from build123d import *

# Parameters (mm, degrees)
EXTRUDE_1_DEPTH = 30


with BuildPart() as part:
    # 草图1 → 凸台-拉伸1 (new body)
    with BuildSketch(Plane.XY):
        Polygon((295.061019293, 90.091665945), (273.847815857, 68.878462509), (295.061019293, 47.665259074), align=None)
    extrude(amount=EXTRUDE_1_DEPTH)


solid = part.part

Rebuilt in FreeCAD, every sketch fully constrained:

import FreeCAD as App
import Part
import Sketcher


def add_polygon(sketch, points):
    """Adds a closed chain of lines whose ends are joined by coincident constraints."""
    first, n = sketch.GeometryCount, len(points)
    for a, b in zip(points, points[1:] + points[:1]):
        sketch.addGeometry(Part.LineSegment(App.Vector(*a, 0), App.Vector(*b, 0)), False)
    for i in range(n):
        sketch.addConstraint(Sketcher.Constraint("Coincident", first + i, 2, first + (i + 1) % n, 1))

doc = App.newDocument("Part")
body = doc.addObject("PartDesign::Body", "Body")

# Sketch on XY plane
sketch1 = doc.addObject("Sketcher::SketchObject", "Sketch")
body.addObject(sketch1)
sketch1.AttachmentSupport = (doc.XY_Plane, [""])
sketch1.MapMode = "FlatFace"
add_polygon(sketch1, [(295, 90), (274, 69), (295, 48)])  # lines 0-2
sketch1.addConstraint([
    Sketcher.Constraint("Vertical", 2),
    Sketcher.Constraint("Perpendicular", 0, 1),
    Sketcher.Constraint("Equal", 0, 1),
    Sketcher.Constraint("Distance", 0, 30.0),
    Sketcher.Constraint("DistanceX", -1, 1, 1, 2, 295.061019),
    Sketcher.Constraint("DistanceY", -1, 1, 1, 2, 47.665259),
])
pad1 = doc.addObject("PartDesign::Pad", "Pad")
body.addObject(pad1)
pad1.Profile = sketch1
pad1.Length = 30

doc.recompute()
